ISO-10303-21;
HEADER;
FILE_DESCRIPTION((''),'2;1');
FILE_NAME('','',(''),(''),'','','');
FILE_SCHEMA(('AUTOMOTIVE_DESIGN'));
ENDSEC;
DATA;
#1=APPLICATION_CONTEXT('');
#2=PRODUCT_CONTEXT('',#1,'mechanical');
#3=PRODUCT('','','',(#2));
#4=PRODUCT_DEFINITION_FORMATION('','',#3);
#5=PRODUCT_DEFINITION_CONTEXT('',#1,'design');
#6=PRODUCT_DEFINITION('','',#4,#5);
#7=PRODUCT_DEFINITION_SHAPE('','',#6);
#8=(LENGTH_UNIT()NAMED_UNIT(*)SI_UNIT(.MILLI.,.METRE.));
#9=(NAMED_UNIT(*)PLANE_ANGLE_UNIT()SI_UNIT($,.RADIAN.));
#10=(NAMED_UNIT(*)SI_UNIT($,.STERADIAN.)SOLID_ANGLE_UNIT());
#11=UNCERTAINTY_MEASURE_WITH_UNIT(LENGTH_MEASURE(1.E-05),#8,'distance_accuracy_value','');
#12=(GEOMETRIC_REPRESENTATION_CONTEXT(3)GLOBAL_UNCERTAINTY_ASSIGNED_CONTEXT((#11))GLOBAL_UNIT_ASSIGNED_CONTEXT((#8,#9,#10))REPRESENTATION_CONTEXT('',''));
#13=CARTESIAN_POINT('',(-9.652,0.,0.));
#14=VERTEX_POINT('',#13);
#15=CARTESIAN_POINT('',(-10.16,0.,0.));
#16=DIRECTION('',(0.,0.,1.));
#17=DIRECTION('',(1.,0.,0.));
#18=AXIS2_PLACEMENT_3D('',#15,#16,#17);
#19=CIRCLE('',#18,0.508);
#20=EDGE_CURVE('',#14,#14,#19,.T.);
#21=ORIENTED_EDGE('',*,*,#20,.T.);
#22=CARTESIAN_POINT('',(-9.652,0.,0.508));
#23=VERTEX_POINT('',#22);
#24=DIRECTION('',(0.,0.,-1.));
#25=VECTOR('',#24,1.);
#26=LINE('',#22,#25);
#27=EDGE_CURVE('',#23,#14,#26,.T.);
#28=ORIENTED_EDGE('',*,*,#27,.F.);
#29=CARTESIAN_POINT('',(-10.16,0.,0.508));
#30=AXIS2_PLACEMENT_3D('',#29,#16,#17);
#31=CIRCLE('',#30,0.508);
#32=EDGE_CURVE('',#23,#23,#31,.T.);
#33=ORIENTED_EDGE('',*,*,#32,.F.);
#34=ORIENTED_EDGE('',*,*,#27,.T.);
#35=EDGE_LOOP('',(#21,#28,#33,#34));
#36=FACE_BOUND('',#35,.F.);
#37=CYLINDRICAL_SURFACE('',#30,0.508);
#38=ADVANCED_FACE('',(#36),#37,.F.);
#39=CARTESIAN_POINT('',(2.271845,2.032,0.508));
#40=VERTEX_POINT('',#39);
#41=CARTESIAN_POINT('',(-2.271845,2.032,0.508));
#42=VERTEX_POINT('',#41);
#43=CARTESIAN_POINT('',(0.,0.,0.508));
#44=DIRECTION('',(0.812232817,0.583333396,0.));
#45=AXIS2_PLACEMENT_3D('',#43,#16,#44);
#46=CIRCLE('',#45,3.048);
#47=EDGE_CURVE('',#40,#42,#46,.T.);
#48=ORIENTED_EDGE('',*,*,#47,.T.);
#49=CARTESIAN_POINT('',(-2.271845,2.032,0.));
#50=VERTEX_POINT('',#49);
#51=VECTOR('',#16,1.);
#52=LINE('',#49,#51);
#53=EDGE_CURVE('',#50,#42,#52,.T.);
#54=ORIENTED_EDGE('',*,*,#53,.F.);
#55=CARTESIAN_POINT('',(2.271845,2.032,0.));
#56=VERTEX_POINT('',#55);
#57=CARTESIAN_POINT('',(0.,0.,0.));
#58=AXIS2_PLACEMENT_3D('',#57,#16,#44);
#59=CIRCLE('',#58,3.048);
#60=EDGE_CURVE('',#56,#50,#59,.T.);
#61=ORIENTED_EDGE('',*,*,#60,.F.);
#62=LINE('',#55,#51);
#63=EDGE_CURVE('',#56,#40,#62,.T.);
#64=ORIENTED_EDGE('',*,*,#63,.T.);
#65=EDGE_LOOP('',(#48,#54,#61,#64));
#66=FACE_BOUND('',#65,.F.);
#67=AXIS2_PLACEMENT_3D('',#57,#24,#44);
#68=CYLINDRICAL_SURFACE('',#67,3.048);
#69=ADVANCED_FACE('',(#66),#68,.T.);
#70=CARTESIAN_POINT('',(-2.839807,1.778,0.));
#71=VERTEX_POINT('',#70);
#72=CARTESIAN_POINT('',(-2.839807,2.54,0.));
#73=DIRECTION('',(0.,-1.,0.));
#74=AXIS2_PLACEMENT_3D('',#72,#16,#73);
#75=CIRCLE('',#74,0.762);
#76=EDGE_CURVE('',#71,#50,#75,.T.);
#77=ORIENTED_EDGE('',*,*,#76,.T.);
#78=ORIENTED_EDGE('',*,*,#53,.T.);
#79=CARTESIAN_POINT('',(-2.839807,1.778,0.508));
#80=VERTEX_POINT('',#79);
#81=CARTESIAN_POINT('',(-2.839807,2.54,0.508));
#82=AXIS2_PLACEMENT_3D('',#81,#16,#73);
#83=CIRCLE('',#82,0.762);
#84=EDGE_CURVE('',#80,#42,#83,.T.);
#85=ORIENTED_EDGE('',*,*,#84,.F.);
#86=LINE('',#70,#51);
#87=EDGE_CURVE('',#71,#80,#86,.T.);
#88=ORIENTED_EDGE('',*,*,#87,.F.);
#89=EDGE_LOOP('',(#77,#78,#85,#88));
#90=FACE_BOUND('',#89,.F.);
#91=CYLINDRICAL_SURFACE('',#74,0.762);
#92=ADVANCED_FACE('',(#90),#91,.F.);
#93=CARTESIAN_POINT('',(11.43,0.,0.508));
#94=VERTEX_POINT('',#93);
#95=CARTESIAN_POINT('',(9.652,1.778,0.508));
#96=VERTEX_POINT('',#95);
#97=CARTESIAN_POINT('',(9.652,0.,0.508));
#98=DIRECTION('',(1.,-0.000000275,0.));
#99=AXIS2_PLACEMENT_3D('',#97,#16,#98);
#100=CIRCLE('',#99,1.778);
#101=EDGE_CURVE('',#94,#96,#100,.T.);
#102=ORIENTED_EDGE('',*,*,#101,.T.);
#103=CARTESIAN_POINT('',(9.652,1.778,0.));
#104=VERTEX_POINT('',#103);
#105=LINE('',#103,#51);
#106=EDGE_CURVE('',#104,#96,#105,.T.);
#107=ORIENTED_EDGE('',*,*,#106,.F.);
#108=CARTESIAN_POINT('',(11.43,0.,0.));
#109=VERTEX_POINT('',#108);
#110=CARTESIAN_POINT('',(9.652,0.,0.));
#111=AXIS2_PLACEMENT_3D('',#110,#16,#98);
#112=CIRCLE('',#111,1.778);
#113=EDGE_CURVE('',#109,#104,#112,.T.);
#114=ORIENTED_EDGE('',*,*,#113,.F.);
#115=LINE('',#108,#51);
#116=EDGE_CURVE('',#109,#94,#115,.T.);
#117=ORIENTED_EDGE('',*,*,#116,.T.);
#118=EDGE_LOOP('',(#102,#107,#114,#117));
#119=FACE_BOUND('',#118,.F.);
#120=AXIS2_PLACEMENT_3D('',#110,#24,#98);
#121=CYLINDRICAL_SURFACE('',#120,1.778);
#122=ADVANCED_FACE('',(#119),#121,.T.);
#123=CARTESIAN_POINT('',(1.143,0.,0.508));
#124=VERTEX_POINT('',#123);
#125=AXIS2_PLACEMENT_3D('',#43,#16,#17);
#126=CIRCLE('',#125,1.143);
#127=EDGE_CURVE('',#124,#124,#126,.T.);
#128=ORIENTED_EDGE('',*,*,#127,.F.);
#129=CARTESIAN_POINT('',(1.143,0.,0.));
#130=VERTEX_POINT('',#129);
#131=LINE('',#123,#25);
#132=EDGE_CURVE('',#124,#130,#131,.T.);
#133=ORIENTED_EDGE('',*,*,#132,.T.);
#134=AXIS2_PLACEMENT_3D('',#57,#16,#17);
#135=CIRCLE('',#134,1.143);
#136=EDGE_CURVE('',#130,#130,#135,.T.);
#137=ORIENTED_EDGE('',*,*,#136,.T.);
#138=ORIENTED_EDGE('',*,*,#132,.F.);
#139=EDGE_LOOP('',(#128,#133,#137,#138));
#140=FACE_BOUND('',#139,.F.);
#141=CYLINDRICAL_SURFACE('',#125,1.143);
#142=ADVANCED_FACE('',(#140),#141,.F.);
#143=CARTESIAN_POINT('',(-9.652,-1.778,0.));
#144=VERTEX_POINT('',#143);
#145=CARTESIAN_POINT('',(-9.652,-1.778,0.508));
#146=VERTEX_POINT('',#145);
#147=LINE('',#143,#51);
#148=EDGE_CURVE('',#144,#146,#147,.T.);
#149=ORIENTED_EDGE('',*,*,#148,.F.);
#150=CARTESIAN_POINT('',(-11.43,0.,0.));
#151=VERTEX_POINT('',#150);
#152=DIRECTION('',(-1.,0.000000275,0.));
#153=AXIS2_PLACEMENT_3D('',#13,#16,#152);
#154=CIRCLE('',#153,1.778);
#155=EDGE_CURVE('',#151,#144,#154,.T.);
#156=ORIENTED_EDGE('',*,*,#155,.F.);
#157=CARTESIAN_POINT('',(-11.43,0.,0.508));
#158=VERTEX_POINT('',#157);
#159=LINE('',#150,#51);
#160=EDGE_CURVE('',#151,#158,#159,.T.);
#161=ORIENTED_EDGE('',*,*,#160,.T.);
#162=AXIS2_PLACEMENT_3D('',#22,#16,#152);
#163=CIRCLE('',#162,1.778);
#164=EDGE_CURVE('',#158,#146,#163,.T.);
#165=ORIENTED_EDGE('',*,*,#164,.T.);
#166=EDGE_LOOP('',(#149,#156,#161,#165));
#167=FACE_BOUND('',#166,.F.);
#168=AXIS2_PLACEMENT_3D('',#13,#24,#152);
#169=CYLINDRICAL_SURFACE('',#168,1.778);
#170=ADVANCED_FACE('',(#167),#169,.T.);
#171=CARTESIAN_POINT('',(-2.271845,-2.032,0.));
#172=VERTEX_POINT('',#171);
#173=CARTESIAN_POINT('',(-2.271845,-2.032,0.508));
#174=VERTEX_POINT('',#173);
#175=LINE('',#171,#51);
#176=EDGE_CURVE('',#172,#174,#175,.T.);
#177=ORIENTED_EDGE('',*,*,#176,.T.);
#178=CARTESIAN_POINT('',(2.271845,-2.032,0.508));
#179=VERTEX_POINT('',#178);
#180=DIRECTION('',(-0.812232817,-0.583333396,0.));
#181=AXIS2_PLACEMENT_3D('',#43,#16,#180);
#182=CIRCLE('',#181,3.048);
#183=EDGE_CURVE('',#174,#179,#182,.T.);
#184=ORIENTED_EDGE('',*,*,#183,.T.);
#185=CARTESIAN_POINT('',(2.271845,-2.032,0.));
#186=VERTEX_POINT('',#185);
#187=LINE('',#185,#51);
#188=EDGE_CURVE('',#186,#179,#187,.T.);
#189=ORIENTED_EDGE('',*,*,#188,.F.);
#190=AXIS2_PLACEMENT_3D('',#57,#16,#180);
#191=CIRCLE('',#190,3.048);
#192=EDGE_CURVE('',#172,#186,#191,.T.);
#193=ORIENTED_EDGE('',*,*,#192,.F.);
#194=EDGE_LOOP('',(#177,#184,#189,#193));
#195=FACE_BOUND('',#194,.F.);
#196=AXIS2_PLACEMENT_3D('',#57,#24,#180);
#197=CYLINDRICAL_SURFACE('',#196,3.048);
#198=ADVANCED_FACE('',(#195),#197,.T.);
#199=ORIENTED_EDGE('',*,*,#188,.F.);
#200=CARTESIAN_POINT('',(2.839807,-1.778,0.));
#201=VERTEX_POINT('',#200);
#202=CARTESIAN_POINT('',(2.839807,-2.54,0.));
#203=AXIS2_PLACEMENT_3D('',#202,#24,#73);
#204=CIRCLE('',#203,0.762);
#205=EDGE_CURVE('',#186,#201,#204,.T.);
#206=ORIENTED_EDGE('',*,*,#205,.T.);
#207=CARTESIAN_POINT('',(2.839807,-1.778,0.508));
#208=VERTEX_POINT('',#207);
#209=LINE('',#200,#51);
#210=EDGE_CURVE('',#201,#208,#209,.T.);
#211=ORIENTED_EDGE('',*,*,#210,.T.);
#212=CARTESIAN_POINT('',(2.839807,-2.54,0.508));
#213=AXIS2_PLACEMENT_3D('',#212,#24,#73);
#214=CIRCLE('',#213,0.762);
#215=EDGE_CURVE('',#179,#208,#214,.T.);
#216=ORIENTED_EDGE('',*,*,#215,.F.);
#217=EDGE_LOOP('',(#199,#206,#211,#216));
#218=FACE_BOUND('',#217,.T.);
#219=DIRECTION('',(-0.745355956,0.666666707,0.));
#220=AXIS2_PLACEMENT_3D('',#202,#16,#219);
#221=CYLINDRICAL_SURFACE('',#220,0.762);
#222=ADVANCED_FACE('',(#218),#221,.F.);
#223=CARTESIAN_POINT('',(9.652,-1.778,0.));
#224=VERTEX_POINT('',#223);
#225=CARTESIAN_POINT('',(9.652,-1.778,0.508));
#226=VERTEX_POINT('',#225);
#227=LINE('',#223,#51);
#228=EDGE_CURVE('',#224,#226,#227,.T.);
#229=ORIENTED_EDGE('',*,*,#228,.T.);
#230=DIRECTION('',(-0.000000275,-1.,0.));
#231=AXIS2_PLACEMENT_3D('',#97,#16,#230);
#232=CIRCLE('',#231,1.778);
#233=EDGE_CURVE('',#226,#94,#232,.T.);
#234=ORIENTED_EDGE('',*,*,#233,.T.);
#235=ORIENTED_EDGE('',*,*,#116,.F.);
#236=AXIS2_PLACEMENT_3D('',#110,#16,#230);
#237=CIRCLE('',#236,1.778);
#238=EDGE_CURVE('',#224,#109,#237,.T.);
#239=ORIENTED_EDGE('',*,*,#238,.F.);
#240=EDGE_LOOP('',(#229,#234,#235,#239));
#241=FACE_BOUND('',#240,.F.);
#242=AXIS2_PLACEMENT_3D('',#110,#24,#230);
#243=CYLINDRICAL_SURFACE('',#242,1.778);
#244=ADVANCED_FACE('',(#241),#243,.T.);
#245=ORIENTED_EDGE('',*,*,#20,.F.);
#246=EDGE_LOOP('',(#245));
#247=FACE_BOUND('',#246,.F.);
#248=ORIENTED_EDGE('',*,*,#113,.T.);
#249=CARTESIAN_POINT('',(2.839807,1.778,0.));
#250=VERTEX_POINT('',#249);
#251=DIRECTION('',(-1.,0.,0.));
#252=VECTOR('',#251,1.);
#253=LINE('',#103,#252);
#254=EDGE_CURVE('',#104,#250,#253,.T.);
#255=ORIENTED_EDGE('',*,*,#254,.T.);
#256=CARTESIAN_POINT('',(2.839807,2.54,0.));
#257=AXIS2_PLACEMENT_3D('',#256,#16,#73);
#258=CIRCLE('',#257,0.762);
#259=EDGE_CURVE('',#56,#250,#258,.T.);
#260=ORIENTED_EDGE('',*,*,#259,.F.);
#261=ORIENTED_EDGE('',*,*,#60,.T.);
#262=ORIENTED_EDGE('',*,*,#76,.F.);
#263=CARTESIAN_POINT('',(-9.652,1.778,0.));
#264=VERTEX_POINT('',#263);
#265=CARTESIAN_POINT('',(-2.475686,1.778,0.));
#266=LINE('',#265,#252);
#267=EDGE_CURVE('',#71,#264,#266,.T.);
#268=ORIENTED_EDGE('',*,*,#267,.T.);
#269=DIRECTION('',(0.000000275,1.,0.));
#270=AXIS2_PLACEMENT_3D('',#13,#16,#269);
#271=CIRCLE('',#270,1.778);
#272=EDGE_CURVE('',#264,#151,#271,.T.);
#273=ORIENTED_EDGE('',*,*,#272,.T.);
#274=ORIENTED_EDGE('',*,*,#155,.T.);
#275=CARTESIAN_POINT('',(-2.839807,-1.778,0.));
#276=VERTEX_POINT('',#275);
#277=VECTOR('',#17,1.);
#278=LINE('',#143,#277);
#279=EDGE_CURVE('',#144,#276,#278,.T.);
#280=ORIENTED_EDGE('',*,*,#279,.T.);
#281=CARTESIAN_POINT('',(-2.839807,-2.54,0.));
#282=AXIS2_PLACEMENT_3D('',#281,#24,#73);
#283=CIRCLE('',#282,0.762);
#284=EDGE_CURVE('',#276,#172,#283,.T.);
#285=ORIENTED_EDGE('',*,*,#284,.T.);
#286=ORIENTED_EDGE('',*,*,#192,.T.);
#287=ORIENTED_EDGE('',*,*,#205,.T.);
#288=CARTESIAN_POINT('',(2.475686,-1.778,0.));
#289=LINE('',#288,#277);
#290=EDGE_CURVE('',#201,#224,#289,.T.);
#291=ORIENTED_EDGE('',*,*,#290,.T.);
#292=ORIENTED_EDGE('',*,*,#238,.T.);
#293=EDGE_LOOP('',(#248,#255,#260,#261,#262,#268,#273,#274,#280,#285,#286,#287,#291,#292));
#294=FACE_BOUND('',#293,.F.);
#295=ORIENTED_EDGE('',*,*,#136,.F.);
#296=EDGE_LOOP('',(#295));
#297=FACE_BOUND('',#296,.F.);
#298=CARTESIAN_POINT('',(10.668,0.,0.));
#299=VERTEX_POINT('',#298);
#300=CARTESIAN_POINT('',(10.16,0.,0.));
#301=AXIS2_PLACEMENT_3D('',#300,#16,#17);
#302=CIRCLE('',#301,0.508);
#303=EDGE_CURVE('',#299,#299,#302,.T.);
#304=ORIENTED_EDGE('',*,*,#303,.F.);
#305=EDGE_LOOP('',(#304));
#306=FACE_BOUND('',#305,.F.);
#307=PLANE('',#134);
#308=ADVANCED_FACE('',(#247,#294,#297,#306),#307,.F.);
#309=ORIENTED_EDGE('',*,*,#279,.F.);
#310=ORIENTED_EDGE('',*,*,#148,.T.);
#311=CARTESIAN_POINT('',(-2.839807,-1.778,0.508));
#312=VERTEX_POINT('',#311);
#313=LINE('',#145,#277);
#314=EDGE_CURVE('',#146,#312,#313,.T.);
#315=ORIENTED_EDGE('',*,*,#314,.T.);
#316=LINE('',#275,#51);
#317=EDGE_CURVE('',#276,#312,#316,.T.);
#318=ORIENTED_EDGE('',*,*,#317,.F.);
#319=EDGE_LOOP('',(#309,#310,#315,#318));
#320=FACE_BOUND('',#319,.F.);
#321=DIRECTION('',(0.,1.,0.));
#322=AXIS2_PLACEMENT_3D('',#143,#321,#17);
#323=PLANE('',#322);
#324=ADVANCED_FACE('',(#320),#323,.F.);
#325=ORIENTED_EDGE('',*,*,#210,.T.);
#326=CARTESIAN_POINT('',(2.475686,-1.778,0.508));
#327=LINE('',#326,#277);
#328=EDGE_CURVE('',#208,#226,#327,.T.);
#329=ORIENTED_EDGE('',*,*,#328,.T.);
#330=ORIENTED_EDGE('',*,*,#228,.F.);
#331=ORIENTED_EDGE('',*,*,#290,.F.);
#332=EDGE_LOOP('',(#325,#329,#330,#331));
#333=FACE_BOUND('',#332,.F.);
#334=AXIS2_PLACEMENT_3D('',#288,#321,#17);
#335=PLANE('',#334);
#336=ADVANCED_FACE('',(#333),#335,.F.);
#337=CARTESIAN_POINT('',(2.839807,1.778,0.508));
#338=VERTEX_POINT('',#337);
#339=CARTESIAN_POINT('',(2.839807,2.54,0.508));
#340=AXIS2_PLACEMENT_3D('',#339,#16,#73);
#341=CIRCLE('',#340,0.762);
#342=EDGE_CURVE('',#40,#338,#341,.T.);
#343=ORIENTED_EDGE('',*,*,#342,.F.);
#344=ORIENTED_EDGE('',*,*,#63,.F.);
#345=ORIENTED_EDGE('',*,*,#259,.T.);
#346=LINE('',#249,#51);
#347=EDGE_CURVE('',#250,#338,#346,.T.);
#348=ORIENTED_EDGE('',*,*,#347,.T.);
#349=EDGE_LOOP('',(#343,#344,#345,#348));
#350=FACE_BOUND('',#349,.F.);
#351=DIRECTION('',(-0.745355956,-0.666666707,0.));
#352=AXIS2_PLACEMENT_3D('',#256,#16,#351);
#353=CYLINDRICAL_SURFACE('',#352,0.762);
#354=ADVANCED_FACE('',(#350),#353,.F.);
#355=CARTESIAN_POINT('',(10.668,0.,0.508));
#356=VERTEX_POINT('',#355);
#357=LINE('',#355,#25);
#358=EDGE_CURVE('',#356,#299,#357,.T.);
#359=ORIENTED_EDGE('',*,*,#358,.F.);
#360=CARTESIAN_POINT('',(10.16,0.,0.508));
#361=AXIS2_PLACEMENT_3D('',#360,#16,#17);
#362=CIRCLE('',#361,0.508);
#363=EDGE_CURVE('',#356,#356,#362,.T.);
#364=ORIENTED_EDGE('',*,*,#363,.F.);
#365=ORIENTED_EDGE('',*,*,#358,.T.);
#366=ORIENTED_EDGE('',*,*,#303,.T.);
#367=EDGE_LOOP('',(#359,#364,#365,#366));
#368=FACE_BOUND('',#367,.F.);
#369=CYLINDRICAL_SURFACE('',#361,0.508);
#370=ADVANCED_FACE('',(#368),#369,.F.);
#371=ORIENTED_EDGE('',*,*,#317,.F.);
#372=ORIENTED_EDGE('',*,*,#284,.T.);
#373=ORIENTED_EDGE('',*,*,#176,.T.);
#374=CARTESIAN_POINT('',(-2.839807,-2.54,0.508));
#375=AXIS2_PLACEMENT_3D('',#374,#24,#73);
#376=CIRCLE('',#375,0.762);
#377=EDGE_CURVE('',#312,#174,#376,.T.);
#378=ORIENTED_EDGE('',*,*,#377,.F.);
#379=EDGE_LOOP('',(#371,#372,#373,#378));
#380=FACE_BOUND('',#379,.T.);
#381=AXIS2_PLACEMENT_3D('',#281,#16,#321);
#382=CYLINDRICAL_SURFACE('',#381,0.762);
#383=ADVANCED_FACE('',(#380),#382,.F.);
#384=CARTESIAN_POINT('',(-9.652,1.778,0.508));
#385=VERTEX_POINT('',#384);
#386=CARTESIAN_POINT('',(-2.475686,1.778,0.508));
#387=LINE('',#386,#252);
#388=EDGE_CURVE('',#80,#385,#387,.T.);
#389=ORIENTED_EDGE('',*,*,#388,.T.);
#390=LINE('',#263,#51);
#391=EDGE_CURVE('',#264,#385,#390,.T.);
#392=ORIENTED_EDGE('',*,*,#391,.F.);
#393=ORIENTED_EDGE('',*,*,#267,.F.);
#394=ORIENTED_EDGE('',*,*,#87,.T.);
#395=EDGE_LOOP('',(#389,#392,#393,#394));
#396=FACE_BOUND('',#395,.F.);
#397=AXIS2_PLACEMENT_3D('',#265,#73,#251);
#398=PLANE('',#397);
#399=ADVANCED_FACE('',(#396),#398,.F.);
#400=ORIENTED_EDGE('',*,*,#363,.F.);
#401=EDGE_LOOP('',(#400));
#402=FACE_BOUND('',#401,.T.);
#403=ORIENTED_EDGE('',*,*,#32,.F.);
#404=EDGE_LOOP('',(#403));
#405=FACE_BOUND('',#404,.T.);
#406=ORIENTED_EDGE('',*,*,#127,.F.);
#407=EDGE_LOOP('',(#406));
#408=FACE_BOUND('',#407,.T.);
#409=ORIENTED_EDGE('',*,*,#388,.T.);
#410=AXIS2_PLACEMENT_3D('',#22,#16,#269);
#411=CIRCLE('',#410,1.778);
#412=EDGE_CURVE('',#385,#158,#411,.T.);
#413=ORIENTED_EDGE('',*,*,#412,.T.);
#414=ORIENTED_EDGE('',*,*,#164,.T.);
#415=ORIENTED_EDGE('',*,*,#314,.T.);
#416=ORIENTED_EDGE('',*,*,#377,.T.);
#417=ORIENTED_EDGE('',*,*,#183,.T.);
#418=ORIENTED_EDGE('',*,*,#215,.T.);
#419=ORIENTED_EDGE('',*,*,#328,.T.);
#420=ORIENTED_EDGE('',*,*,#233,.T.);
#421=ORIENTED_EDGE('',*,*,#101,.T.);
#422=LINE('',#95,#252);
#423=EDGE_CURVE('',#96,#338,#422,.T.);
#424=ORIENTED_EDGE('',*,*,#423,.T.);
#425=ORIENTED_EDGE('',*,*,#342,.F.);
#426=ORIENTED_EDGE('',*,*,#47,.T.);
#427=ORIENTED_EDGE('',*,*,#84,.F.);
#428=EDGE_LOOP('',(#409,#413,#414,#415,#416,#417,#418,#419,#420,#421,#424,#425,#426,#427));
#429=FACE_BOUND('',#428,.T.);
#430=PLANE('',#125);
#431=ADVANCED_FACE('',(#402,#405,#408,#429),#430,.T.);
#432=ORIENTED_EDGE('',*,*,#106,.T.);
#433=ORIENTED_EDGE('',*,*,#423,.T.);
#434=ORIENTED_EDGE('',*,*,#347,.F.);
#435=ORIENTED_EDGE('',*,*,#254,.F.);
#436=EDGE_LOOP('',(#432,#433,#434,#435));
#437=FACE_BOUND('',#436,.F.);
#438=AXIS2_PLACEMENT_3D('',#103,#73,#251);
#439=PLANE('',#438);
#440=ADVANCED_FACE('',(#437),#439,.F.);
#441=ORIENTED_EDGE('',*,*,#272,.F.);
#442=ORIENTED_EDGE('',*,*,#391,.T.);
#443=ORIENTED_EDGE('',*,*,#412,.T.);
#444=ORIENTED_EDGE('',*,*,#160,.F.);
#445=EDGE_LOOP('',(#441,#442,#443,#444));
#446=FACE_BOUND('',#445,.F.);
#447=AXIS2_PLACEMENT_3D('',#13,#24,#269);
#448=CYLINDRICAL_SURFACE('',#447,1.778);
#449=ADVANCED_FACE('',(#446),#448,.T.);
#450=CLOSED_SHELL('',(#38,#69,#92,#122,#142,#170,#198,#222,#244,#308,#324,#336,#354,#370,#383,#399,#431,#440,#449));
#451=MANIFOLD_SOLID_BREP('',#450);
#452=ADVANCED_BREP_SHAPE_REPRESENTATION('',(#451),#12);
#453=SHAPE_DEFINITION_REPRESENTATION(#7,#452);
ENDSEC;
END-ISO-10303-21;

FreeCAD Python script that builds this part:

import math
import FreeCAD as App
import Part
import Sketcher
Q = App.Units.Quantity


def edges_at(feature, points):
    """Names of the edges that pass closest to the given points."""
    edges = feature.Shape.Edges
    near = lambda p: min(range(len(edges)), key=lambda i: edges[i].distToShape(Part.Vertex(*p))[0])
    return sorted({f"Edge{near(p) + 1}" for p in points})

doc = App.newDocument("Part")
params = doc.addObject("Spreadsheet::Sheet", "Params")
for row, (alias, value) in enumerate([
    ("sketch1_radius", "0.07 in"),
    ("sketch1_radius2", "0.12 in"),
    ("pad1_length", "0.02 in"),
    ("sketch2_diameter", "0.04 in"),
    ("sketch2_diameter2", "0.09 in"),
    ("fillet_radius", "0.03 in"),
], start=1):
    params.set(f"A{row}", alias)
    params.set(f"B{row}", "=" + value)
    params.setAlias(f"B{row}", alias)

body = doc.addObject("PartDesign::Body", "Body")

# Sketch on XY plane
sketch1 = body.newObject("Sketcher::SketchObject", "Sketch")
sketch1.AttachmentSupport = (doc.getObject("XY_Plane"), [""])
sketch1.MapMode = "FlatFace"
sketch1.addGeometry([
    Part.LineSegment(App.Vector(-2.5, 1.8, 0), App.Vector(-9.7, 1.8, 0)),  # 0
    Part.ArcOfCircle(Part.Circle(App.Vector(-9.7, 0, 0), App.Vector(0, 0, 1), 1.8), math.radians(90), math.radians(180)),  # 1
    Part.ArcOfCircle(Part.Circle(App.Vector(-9.7, 0, 0), App.Vector(0, 0, 1), 1.8), math.radians(180), math.radians(270)),  # 2
    Part.LineSegment(App.Vector(-9.7, -1.8, 0), App.Vector(-2.5, -1.8, 0)),  # 3
    Part.ArcOfCircle(Part.Circle(App.Vector(0, 0, 0), App.Vector(0, 0, 1), 3), math.radians(-144), math.radians(-36)),  # 4
    Part.LineSegment(App.Vector(2.5, -1.8, 0), App.Vector(9.7, -1.8, 0)),  # 5
    Part.ArcOfCircle(Part.Circle(App.Vector(9.7, 0, 0), App.Vector(0, 0, 1), 1.8), math.radians(-90), math.radians(0)),  # 6
    Part.ArcOfCircle(Part.Circle(App.Vector(9.7, 0, 0), App.Vector(0, 0, 1), 1.8), math.radians(0), math.radians(90)),  # 7
    Part.LineSegment(App.Vector(9.7, 1.8, 0), App.Vector(2.5, 1.8, 0)),  # 8
    Part.ArcOfCircle(Part.Circle(App.Vector(0, 0, 0), App.Vector(0, 0, 1), 3), math.radians(36), math.radians(144)),  # 9
], False)
sketch1.addConstraint([
    Sketcher.Constraint("Tangent", 0, 2, 1, 1),
    Sketcher.Constraint("Tangent", 1, 2, 2, 1),
    Sketcher.Constraint("Tangent", 2, 2, 3, 1),
    Sketcher.Constraint("Coincident", 3, 2, 4, 1),
    Sketcher.Constraint("Coincident", 4, 2, 5, 1),
    Sketcher.Constraint("Tangent", 5, 2, 6, 1),
    Sketcher.Constraint("Tangent", 6, 2, 7, 1),
    Sketcher.Constraint("Tangent", 7, 2, 8, 1),
    Sketcher.Constraint("Coincident", 8, 2, 9, 1),
    Sketcher.Constraint("Coincident", 9, 2, 0, 1),
    Sketcher.Constraint("Horizontal", 0),
    Sketcher.Constraint("Horizontal", 3),
    Sketcher.Constraint("Horizontal", 5),
    Sketcher.Constraint("Horizontal", 8),
    Sketcher.Constraint("Coincident", 4, 3, -1, 1),
    Sketcher.Constraint("Coincident", 9, 3, -1, 1),
    Sketcher.Constraint("Equal", 1, 2),
    Sketcher.Constraint("Equal", 2, 6),
    Sketcher.Constraint("Equal", 6, 7),
    Sketcher.Constraint("Equal", 4, 9),
    Sketcher.Constraint("Symmetric", 1, 3, 6, 3, -1, 1),
    Sketcher.Constraint("PointOnObject", 1, 3, -1),
    Sketcher.Constraint("PointOnObject", 1, 2, -1),
    Sketcher.Constraint("PointOnObject", 6, 2, -1),
    Sketcher.Constraint("Radius", 1, Q("0.07 in")),
    Sketcher.Constraint("Radius", 4, Q("0.12 in")),
    Sketcher.Constraint("DistanceX", 1, 3, -1, 1, Q("0.38 in")),
])
sketch1.setExpression("Constraints[24]", "Params.sketch1_radius")
sketch1.setExpression("Constraints[25]", "Params.sketch1_radius2")
pad1 = body.newObject("PartDesign::Pad", "Pad")
pad1.Profile = sketch1
pad1.setExpression("Length", "Params.pad1_length")

# Sketch on XY plane
sketch2 = body.newObject("Sketcher::SketchObject", "Sketch001")
sketch2.AttachmentSupport = (doc.getObject("XY_Plane"), [""])
sketch2.MapMode = "FlatFace"
sketch2.AttachmentOffset = App.Placement(App.Vector(0, 0, 0.02 * 25.4), App.Rotation())
sketch2.addGeometry([
    Part.Circle(App.Vector(-10.2, 0, 0), App.Vector(0, 0, 1), 0.5),
    Part.Circle(App.Vector(10.2, 0, 0), App.Vector(0, 0, 1), 0.5),
    Part.Circle(App.Vector(0, 0, 0), App.Vector(0, 0, 1), 1.1),
], False)
sketch2.addConstraint([
    Sketcher.Constraint("Coincident", 2, 3, -1, 1),
    Sketcher.Constraint("Equal", 0, 1),
    Sketcher.Constraint("Symmetric", 0, 3, 1, 3, -1, 1),
    Sketcher.Constraint("PointOnObject", 0, 3, -1),
    Sketcher.Constraint("Diameter", 0, Q("0.04 in")),
    Sketcher.Constraint("Diameter", 2, Q("0.09 in")),
    Sketcher.Constraint("DistanceX", 0, 3, -1, 1, Q("0.4 in")),
])
sketch2.setExpression("Constraints[4]", "Params.sketch2_diameter")
sketch2.setExpression("Constraints[5]", "Params.sketch2_diameter2")
pocket1 = body.newObject("PartDesign::Pocket", "Pocket")
pocket1.Profile = sketch2
pocket1.Type = "ThroughAll"
doc.recompute()

fillet = body.newObject("PartDesign::Fillet", "Fillet")
fillet.Base = (pocket1, edges_at(pocket1, [
    (-2.476, -1.778, 0.254),
    (2.476, -1.778, 0.254),
    (-2.476, 1.778, 0.254),
    (2.476, 1.778, 0.254),
]))
fillet.setExpression("Radius", "Params.fillet_radius")

doc.recompute()
